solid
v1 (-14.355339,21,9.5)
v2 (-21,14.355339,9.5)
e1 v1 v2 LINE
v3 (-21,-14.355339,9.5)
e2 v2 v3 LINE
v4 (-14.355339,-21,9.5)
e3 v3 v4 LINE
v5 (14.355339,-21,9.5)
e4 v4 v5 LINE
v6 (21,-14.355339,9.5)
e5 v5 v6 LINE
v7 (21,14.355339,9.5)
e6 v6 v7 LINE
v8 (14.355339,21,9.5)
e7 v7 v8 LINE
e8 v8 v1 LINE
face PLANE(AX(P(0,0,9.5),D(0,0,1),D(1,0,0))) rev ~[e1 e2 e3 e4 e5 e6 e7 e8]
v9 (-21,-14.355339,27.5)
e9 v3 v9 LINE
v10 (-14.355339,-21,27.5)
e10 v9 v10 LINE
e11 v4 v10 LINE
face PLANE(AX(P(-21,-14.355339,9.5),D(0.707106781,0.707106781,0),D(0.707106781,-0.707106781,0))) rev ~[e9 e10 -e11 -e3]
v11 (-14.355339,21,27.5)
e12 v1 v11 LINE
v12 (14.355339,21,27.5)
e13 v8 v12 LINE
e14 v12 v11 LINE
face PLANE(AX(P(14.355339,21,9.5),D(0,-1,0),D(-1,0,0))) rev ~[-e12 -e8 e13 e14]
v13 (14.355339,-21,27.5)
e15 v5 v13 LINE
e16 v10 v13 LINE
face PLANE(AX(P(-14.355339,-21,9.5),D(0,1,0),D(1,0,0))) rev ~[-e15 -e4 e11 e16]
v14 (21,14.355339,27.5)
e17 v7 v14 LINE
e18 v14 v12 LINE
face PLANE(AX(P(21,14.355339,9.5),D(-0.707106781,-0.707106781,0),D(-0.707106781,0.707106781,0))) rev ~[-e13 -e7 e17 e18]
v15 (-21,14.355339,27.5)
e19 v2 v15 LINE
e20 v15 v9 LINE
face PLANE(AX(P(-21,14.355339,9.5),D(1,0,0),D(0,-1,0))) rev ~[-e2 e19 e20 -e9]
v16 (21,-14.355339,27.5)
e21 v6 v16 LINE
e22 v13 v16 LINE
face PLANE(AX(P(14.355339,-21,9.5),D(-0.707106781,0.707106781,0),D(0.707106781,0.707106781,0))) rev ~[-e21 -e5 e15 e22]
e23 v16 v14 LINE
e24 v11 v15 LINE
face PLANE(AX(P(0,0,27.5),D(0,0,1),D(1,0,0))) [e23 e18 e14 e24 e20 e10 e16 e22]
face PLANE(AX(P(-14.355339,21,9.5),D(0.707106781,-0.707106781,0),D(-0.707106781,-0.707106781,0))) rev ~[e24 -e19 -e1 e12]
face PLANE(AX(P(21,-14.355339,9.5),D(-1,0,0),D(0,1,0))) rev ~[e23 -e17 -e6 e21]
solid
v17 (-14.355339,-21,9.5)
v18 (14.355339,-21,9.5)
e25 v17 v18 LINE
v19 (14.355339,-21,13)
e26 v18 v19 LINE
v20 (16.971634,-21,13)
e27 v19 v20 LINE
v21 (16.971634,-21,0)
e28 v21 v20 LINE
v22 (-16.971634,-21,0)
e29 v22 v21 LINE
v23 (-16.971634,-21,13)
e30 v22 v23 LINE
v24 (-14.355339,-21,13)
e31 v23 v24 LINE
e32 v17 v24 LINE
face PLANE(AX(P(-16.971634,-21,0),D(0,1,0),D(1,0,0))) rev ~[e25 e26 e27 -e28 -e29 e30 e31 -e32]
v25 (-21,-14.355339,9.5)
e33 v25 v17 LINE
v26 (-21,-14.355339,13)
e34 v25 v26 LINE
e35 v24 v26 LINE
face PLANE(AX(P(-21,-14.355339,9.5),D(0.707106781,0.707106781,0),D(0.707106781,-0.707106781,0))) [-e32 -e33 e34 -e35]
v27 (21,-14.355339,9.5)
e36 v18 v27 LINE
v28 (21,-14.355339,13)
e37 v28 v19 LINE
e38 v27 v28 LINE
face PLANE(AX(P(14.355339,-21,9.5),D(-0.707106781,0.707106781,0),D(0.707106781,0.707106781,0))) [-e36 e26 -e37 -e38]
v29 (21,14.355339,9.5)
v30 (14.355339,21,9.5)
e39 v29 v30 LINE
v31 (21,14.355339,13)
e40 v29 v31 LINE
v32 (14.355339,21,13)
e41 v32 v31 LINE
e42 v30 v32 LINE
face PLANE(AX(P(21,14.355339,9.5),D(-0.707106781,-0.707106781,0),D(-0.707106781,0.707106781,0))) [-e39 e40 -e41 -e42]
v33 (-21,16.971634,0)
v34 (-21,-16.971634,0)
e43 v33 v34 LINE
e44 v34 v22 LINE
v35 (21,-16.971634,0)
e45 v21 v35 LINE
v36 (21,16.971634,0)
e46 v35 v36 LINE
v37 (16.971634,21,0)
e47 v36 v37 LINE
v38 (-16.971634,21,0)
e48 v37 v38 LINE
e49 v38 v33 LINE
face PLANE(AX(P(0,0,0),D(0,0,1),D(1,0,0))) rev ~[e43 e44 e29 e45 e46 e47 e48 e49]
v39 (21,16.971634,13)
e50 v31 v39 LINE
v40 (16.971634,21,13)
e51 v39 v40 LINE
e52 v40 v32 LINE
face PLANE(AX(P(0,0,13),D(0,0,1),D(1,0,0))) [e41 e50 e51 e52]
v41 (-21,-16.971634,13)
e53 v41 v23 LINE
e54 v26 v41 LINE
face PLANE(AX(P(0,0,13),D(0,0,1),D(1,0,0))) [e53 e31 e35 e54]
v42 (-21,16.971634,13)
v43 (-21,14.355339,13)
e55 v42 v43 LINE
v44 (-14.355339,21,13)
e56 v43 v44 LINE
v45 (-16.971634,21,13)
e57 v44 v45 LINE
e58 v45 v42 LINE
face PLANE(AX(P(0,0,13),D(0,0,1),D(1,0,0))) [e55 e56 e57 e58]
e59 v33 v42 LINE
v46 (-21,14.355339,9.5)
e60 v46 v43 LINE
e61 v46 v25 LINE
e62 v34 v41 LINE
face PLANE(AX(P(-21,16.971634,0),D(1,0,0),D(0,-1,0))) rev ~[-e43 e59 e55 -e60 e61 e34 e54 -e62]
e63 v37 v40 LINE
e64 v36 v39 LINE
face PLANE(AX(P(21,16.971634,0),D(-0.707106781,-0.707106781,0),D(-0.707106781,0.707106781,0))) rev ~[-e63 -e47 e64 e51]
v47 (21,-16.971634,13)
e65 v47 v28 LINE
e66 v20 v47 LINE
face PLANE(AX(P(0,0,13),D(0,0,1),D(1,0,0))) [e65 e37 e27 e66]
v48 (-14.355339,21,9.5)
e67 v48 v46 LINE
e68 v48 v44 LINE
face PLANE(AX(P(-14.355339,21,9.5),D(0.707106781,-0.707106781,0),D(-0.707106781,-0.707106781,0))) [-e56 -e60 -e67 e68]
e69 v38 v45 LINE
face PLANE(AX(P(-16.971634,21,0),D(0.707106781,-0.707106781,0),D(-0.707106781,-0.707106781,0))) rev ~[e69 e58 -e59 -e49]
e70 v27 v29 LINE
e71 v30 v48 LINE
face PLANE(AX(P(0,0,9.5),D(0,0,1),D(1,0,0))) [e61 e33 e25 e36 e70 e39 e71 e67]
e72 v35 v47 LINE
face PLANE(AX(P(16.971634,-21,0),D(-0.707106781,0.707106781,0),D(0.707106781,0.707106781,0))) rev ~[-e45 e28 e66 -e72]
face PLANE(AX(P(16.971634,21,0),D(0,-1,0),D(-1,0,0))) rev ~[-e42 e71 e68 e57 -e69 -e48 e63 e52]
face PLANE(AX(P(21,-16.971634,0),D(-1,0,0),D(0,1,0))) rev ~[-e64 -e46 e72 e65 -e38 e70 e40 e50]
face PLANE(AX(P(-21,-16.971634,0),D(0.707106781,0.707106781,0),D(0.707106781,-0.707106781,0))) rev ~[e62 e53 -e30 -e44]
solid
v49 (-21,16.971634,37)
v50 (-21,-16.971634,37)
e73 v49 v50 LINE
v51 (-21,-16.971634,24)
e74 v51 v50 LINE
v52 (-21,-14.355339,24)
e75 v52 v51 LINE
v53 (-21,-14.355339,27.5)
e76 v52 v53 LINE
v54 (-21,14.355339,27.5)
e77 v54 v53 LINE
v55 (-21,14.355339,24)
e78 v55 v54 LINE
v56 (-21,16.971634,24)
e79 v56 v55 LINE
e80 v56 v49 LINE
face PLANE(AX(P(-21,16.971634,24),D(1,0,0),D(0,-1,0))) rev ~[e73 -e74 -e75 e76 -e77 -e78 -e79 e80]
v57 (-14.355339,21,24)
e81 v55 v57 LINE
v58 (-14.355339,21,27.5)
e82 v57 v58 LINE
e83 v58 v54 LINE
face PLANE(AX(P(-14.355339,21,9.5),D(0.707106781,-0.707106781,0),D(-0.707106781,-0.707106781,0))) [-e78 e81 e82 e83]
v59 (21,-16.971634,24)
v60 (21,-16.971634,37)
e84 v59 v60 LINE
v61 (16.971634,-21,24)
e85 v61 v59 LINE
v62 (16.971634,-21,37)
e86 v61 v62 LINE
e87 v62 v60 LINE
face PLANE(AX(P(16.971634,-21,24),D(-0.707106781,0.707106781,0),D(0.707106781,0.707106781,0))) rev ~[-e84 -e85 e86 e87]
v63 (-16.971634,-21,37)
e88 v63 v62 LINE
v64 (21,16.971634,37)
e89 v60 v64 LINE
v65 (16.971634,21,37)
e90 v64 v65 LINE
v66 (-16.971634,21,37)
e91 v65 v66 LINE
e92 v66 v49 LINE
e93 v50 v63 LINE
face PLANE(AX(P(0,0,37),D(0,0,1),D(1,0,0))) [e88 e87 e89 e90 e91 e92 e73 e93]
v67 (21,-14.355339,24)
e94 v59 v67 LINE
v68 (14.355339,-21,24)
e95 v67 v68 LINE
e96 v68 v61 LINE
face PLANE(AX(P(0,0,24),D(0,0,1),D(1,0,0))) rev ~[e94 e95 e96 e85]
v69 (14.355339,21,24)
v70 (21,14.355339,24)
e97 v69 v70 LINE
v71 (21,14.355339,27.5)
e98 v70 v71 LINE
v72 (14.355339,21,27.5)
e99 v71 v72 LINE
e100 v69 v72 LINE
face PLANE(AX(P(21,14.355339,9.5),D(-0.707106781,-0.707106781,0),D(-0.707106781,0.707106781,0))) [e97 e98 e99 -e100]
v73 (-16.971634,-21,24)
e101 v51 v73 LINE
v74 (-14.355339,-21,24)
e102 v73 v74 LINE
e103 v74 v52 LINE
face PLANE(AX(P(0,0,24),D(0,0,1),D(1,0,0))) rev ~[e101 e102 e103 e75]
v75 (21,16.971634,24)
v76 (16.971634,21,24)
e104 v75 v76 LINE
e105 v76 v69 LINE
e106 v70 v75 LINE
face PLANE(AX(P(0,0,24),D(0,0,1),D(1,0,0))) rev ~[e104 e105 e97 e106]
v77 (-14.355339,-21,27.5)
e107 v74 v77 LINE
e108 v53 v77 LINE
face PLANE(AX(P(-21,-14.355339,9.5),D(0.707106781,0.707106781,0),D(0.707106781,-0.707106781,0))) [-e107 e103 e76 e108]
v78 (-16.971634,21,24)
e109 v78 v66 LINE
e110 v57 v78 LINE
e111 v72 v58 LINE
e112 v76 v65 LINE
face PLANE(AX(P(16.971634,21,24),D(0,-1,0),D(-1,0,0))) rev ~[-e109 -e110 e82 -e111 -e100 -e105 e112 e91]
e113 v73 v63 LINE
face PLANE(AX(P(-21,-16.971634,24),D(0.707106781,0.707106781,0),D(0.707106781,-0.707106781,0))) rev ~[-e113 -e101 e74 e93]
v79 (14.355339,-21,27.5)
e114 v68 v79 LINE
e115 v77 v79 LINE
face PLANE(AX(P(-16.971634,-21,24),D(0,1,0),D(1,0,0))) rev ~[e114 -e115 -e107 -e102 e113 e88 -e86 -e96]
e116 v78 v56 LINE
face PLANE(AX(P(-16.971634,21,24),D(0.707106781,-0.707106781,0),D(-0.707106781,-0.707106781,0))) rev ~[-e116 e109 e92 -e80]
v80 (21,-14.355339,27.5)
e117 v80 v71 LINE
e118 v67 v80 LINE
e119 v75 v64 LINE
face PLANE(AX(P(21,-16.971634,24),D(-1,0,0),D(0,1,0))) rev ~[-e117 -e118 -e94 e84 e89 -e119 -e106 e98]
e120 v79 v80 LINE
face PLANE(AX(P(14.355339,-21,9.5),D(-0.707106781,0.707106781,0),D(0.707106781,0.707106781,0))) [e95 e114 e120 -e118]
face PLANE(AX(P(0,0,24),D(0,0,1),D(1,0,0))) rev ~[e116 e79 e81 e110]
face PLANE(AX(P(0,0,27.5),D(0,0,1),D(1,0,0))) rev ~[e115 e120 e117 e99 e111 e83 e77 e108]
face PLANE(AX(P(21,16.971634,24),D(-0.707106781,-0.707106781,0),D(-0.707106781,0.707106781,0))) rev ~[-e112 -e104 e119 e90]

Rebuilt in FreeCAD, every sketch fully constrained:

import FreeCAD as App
import Part
import Sketcher


def add_polygon(sketch, points):
    """Adds a closed chain of lines whose ends are joined by coincident constraints."""
    first, n = sketch.GeometryCount, len(points)
    for a, b in zip(points, points[1:] + points[:1]):
        sketch.addGeometry(Part.LineSegment(App.Vector(*a, 0), App.Vector(*b, 0)), False)
    for i in range(n):
        sketch.addConstraint(Sketcher.Constraint("Coincident", first + i, 2, first + (i + 1) % n, 1))

doc = App.newDocument("Part")
body = doc.addObject("PartDesign::Body", "Body")

sketch1 = body.newObject("Sketcher::SketchObject", "Sketch")
sketch1.AttachmentSupport = (doc.getObject("XY_Plane"), [""])
sketch1.MapMode = "FlatFace"
add_polygon(sketch1, [(-17, -21), (17, -21), (21, -17), (21, 17), (17, 21), (-17, 21), (-21, 17), (-21, -17)])
sketch1.addConstraint([
    Sketcher.Constraint("Horizontal", 0),
    Sketcher.Constraint("Vertical", 2),
    Sketcher.Constraint("Horizontal", 4),
    Sketcher.Constraint("Vertical", 6),
    Sketcher.Constraint("Symmetric", 0, 2, 4, 2, -1, 1),
    Sketcher.Constraint("Symmetric", 1, 2, 5, 2, -1, 1),
    Sketcher.Constraint("Perpendicular", 1, 3),
    Sketcher.Constraint("Perpendicular", 5, 7),
    Sketcher.Constraint("Horizontal", 2, 2, 5, 2),
    Sketcher.Constraint("Horizontal", 1, 2, 6, 2),
    Sketcher.Constraint("Vertical", 0, 2, 3, 2),
    Sketcher.Constraint("Equal", 4, 2),
    Sketcher.Constraint("DistanceY", 0, 2, -1, 1, 21.0),
    Sketcher.Constraint("DistanceX", 0, 1, 0, 2, 33.943268),
])
pad1 = body.newObject("PartDesign::Pad", "Pad")
pad1.Profile = sketch1
pad1.Length = 13
body2 = doc.addObject("PartDesign::Body", "Body001")

sketch2 = body2.newObject("Sketcher::SketchObject", "Sketch001")
sketch2.AttachmentSupport = (doc.getObject("XY_Plane001"), [""])
sketch2.MapMode = "FlatFace"
sketch2.AttachmentOffset = App.Placement(App.Vector(0, 0, 9.5), App.Rotation())
add_polygon(sketch2, [(-14, -21), (14, -21), (21, -14), (21, 14), (14, 21), (-14, 21), (-21, 14), (-21, -14)])
sketch2.addConstraint([
    Sketcher.Constraint("Horizontal", 0),
    Sketcher.Constraint("Vertical", 2),
    Sketcher.Constraint("Horizontal", 4),
    Sketcher.Constraint("Vertical", 6),
    Sketcher.Constraint("Symmetric", 0, 2, 4, 2, -1, 1),
    Sketcher.Constraint("Symmetric", 1, 2, 5, 2, -1, 1),
    Sketcher.Constraint("Perpendicular", 1, 3),
    Sketcher.Constraint("Perpendicular", 5, 7),
    Sketcher.Constraint("Horizontal", 2, 2, 5, 2),
    Sketcher.Constraint("Horizontal", 1, 2, 6, 2),
    Sketcher.Constraint("Vertical", 0, 2, 3, 2),
    Sketcher.Constraint("Equal", 4, 2),
    Sketcher.Constraint("DistanceY", 0, 2, -1, 1, 21.0),
    Sketcher.Constraint("DistanceX", 0, 1, 0, 2, 28.710678),
])
pad2 = body2.newObject("PartDesign::Pad", "Pad001")
pad2.Profile = sketch2
pad2.Length = 18
doc.recompute()

body3 = doc.addObject("PartDesign::Body", "Body002")
body3.BaseFeature = body2
boolean = body.newObject("PartDesign::Boolean", "Boolean")
boolean.Type = "Cut"
boolean.addObjects([body3])
doc.recompute()
body4 = doc.addObject("PartDesign::Body", "Body003")

sketch3 = body4.newObject("Sketcher::SketchObject", "Sketch002")
sketch3.AttachmentSupport = (doc.getObject("XY_Plane003"), [""])
sketch3.MapMode = "FlatFace"
sketch3.AttachmentOffset = App.Placement(App.Vector(0, 0, 24), App.Rotation())
add_polygon(sketch3, [(-17, -21), (17, -21), (21, -17), (21, 17), (17, 21), (-17, 21), (-21, 17), (-21, -17)])
sketch3.addConstraint([
    Sketcher.Constraint("Horizontal", 0),
    Sketcher.Constraint("Vertical", 2),
    Sketcher.Constraint("Horizontal", 4),
    Sketcher.Constraint("Vertical", 6),
    Sketcher.Constraint("Symmetric", 0, 2, 4, 2, -1, 1),
    Sketcher.Constraint("Symmetric", 1, 2, 5, 2, -1, 1),
    Sketcher.Constraint("Perpendicular", 1, 3),
    Sketcher.Constraint("Perpendicular", 5, 7),
    Sketcher.Constraint("Horizontal", 2, 2, 5, 2),
    Sketcher.Constraint("Horizontal", 1, 2, 6, 2),
    Sketcher.Constraint("Vertical", 0, 2, 3, 2),
    Sketcher.Constraint("Equal", 4, 2),
    Sketcher.Constraint("DistanceY", 0, 2, -1, 1, 21.0),
    Sketcher.Constraint("DistanceX", 0, 1, 0, 2, 33.943268),
])
pad3 = body4.newObject("PartDesign::Pad", "Pad002")
pad3.Profile = sketch3
pad3.Length = 13
doc.recompute()

body5 = doc.addObject("PartDesign::Body", "Body004")
body5.BaseFeature = body2
boolean2 = body4.newObject("PartDesign::Boolean", "Boolean001")
boolean2.Type = "Cut"
boolean2.addObjects([body5])
doc.recompute()

doc.recompute()
